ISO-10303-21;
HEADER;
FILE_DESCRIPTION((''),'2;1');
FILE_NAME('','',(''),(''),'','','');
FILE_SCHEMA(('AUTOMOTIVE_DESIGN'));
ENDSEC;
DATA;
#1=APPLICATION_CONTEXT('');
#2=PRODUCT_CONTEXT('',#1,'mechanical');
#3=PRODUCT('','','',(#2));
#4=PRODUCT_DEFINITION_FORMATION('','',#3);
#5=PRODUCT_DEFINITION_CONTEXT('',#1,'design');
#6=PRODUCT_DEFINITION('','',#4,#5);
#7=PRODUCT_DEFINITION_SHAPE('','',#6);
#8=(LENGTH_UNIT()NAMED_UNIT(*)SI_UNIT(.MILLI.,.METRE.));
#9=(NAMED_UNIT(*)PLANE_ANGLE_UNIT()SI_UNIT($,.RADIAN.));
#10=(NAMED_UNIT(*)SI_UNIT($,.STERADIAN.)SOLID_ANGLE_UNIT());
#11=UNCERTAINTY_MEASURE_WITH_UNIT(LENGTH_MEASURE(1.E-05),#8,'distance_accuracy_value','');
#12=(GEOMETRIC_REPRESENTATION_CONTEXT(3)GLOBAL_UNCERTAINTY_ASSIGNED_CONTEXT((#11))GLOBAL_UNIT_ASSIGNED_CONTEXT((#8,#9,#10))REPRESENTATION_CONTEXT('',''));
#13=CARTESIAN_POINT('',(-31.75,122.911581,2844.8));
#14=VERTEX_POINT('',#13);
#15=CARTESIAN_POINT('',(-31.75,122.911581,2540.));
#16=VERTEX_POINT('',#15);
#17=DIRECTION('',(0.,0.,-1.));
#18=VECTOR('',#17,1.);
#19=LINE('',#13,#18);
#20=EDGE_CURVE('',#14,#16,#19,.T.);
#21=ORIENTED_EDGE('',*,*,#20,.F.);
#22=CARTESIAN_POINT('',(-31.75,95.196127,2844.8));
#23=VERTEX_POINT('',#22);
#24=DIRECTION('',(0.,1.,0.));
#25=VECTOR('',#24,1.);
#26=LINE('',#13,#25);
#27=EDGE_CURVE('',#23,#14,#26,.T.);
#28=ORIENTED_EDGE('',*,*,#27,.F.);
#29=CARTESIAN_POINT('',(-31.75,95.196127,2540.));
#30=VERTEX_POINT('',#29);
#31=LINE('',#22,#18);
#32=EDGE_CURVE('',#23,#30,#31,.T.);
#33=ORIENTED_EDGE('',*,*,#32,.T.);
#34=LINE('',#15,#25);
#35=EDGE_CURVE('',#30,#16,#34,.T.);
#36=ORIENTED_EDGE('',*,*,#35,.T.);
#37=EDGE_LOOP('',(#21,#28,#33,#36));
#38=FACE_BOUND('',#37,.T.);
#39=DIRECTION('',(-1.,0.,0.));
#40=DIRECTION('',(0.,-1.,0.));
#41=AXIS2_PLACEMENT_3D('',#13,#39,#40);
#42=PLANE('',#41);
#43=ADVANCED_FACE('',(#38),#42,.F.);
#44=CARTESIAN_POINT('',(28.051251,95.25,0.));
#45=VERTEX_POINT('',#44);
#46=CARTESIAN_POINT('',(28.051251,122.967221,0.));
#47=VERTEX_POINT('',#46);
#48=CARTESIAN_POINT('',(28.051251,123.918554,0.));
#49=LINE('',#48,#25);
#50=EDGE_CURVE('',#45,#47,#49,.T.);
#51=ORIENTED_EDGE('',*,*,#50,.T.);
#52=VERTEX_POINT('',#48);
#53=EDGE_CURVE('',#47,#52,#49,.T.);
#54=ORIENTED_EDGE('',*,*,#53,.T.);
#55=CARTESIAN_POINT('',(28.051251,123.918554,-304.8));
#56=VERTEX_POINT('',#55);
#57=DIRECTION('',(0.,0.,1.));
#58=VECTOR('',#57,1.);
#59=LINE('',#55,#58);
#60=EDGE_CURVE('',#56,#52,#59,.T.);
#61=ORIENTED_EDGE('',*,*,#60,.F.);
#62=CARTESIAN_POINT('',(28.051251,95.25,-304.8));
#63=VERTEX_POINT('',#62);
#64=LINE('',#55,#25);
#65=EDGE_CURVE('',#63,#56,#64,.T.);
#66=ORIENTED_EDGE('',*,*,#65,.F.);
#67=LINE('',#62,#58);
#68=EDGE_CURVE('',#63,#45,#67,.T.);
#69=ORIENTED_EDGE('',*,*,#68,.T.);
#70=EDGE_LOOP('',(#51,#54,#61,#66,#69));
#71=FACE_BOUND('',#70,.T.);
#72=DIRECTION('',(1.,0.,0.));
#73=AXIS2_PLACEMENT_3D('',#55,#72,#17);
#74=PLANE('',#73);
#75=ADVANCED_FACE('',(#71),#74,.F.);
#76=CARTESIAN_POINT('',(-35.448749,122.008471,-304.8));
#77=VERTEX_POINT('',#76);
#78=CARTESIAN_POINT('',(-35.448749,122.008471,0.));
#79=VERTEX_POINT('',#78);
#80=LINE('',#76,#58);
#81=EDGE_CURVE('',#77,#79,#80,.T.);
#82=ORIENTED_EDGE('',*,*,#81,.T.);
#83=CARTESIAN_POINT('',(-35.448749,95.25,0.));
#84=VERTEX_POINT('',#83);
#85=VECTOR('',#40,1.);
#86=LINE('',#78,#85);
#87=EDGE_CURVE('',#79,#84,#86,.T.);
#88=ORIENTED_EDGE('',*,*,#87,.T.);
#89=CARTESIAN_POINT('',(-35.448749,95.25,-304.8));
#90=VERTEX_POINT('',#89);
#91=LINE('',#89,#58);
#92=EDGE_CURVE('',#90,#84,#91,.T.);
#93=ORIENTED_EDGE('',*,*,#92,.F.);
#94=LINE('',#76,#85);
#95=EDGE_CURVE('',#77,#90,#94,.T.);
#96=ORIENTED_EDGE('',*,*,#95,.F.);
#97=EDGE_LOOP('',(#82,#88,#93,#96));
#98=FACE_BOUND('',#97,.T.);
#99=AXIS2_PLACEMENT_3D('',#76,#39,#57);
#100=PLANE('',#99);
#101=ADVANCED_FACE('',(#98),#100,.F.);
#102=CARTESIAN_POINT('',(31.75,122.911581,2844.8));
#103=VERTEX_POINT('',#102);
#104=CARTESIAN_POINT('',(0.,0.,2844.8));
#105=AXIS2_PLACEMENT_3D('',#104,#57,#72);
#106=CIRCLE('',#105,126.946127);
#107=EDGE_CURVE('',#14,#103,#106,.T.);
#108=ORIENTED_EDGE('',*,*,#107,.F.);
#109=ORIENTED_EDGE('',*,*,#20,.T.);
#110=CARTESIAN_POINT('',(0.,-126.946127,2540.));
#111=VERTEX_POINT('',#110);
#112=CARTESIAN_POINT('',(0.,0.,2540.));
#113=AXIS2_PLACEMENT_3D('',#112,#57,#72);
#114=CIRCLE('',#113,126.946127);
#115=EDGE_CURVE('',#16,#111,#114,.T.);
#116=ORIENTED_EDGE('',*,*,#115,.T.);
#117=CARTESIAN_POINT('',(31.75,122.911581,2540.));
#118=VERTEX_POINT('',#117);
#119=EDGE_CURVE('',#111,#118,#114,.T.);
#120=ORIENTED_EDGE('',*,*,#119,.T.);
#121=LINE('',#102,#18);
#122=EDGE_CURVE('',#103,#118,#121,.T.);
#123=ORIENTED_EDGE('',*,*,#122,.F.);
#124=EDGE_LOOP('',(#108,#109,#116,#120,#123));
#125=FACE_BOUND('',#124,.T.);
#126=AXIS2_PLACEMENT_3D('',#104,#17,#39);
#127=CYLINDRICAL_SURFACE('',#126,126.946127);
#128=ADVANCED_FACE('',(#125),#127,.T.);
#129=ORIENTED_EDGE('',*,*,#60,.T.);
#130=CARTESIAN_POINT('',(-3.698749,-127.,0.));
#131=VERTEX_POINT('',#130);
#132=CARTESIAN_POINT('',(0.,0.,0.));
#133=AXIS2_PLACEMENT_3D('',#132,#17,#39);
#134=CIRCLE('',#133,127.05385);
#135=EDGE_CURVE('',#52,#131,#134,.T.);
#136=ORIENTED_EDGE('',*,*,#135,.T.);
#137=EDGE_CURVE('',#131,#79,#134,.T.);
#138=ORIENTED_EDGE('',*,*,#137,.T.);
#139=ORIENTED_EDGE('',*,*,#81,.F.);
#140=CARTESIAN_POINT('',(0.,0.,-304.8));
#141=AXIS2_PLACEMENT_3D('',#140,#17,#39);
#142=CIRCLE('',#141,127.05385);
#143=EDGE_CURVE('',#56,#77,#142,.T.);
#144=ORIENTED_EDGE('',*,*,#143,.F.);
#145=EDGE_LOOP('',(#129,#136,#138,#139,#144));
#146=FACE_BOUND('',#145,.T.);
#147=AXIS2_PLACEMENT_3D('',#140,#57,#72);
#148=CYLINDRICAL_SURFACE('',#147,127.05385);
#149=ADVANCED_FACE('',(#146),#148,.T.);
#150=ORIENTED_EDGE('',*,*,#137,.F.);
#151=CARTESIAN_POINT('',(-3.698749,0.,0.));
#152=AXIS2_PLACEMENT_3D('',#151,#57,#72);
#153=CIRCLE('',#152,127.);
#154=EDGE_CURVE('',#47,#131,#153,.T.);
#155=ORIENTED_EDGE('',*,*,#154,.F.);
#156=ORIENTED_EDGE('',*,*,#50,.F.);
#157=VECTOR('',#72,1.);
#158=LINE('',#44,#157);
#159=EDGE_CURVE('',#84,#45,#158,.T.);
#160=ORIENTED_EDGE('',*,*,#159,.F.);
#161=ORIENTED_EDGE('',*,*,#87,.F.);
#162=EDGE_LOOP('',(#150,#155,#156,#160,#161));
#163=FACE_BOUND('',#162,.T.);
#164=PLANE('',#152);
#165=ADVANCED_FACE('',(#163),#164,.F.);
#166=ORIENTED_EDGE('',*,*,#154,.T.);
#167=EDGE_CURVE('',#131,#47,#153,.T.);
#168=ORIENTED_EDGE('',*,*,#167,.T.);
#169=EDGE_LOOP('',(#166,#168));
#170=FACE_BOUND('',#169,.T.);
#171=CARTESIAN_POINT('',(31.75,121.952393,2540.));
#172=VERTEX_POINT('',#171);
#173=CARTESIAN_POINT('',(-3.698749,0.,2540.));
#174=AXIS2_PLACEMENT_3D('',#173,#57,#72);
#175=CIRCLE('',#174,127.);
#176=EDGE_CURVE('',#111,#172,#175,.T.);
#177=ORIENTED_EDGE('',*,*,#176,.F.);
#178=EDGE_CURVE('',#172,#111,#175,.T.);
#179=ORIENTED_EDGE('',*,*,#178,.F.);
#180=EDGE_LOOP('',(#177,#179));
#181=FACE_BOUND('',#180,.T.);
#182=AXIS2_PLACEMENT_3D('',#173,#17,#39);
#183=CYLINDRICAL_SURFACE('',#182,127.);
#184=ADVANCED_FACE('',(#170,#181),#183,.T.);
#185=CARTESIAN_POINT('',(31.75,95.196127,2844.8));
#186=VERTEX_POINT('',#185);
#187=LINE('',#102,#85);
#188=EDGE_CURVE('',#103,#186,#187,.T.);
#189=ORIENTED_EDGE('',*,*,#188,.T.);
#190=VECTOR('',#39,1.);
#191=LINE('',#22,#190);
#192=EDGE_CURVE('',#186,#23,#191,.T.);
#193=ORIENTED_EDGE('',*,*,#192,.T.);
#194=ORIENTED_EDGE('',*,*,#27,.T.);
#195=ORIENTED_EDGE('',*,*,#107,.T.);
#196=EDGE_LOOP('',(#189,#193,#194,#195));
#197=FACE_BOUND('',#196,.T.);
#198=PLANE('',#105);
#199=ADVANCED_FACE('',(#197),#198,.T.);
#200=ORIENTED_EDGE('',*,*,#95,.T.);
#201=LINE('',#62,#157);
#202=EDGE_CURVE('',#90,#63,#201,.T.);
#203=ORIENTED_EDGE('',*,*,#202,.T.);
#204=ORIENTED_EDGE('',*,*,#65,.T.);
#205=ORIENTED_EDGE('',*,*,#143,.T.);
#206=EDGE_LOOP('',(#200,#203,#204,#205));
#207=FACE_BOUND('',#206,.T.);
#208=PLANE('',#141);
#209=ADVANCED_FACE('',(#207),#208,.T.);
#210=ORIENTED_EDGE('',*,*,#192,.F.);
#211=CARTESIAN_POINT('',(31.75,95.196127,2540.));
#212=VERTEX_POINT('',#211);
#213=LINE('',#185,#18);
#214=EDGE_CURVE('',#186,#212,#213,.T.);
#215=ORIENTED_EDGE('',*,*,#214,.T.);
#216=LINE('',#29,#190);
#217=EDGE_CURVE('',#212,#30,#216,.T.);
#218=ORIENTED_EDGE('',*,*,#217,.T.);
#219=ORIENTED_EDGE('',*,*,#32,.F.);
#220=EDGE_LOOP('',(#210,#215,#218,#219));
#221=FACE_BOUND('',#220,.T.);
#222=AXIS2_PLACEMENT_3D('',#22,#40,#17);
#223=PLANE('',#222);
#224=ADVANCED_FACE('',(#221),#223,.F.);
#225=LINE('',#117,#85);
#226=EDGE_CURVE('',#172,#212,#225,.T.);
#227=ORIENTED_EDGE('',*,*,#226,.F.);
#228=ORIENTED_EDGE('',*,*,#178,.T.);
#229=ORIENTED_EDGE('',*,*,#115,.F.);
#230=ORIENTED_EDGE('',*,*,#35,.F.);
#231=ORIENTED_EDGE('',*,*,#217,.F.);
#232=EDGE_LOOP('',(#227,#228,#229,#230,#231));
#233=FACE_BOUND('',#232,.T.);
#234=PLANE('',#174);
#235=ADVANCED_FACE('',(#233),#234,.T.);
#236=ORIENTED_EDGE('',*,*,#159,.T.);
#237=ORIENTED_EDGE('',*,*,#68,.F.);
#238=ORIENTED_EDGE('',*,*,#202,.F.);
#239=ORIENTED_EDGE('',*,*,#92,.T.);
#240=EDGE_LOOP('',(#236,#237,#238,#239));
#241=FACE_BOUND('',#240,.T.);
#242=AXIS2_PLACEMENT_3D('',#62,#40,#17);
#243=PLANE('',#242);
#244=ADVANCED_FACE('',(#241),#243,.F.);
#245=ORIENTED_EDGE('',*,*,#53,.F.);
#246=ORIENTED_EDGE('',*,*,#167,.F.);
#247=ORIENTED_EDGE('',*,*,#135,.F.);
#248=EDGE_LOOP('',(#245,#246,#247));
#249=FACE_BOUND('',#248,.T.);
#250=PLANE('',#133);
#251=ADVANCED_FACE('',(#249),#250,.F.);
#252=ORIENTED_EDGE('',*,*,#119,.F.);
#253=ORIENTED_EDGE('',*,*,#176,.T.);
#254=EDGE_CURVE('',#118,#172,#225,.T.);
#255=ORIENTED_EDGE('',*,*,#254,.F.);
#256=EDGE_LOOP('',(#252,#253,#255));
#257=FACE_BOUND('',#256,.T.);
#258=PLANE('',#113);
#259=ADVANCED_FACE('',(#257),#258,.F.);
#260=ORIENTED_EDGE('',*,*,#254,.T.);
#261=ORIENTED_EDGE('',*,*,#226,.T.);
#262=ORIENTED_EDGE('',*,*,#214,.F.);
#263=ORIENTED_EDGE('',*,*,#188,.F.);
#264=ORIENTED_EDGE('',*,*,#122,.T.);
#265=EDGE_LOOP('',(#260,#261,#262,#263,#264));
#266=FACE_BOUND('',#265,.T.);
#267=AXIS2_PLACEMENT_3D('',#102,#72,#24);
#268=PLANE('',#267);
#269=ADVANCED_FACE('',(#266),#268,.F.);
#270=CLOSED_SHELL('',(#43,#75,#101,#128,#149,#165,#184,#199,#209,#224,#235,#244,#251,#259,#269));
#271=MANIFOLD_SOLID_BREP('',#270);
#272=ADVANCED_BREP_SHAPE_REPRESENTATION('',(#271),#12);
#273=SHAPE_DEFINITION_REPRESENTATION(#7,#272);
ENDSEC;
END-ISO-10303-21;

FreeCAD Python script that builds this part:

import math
import FreeCAD as App
import Part
import Sketcher
from FreeCAD import Vector
Q = App.Units.Quantity

doc = App.newDocument("Part")
body = doc.addObject("PartDesign::Body", "Body")

sketch1 = body.newObject("Sketcher::SketchObject", "Sketch")
sketch1.AttachmentSupport = (doc.getObject("XY_Plane"), [""])
sketch1.MapMode = "FlatFace"
sketch1.addGeometry(Part.Circle(Vector(-3.698749, 0, 0), Vector(0, 0, 1), 127), False)
sketch1.addConstraint(Sketcher.Constraint("PointOnObject", 0, 3, -1))
sketch1.addConstraint(Sketcher.Constraint("Diameter", 0, Q("10 in")))
sketch1.addConstraint(Sketcher.Constraint("DistanceX", 0, 3, -1, 1, Q("3.698749 mm")))
pad1 = body.newObject("PartDesign::Pad", "Pad")
pad1.Profile = sketch1
pad1.Length = Q("100 in")

sketch2 = body.newObject("Sketcher::SketchObject", "Sketch001")
sketch2.AttachmentSupport = (doc.getObject("XY_Plane"), [""])
sketch2.MapMode = "FlatFace"
sketch2.AttachmentOffset = App.Placement(Vector(0, 0, 100 * 25.4), App.Rotation())
sketch2.addGeometry(Part.LineSegment(Vector(-31.75, 95.196127, 0), Vector(-31.75, 122.911581, 0)), False)
sketch2.addGeometry(Part.ArcOfCircle(Part.Circle(Vector(0, 0, 0), Vector(0, 0, 1), 126.946127), math.radians(104.48379), math.radians(435.51621)), False)
sketch2.addGeometry(Part.LineSegment(Vector(31.75, 122.911581, 0), Vector(31.75, 95.196127, 0)), False)
sketch2.addGeometry(Part.LineSegment(Vector(31.75, 95.196127, 0), Vector(-31.75, 95.196127, 0)), False)
sketch2.addConstraint(Sketcher.Constraint("Coincident", 0, 2, 1, 1))
sketch2.addConstraint(Sketcher.Constraint("Coincident", 1, 2, 2, 1))
sketch2.addConstraint(Sketcher.Constraint("Coincident", 2, 2, 3, 1))
sketch2.addConstraint(Sketcher.Constraint("Coincident", 3, 2, 0, 1))
sketch2.addConstraint(Sketcher.Constraint("Vertical", 0))
sketch2.addConstraint(Sketcher.Constraint("Vertical", 2))
sketch2.addConstraint(Sketcher.Constraint("Horizontal", 3))
sketch2.addConstraint(Sketcher.Constraint("Coincident", 1, 3, -1, 1))
sketch2.addConstraint(Sketcher.Constraint("Horizontal", 0, 2, 1, 2))
sketch2.addConstraint(Sketcher.Constraint("DistanceX", 3, 2, 3, 1, Q("2.5 in")))
sketch2.addConstraint(Sketcher.Constraint("Radius", 1, Q("126.946127 mm")))
sketch2.addConstraint(Sketcher.Constraint("DistanceY", 0, 1, 0, 2, Q("27.715454 mm")))
pad2 = body.newObject("PartDesign::Pad", "Pad001")
pad2.Profile = sketch2
pad2.Length = Q("12 in")

sketch3 = body.newObject("Sketcher::SketchObject", "Sketch002")
sketch3.AttachmentSupport = (doc.getObject("XY_Plane"), [""])
sketch3.MapMode = "FlatFace"
sketch3.addGeometry(Part.LineSegment(Vector(28.051251, 95.25, 0), Vector(28.051251, 123.918554, 0)), False)
sketch3.addGeometry(Part.ArcOfCircle(Part.Circle(Vector(0, 0, 0), Vector(0, 0, 1), 127.05385), math.radians(106.200871), math.radians(437.24501)), False)
sketch3.addGeometry(Part.LineSegment(Vector(-35.448749, 122.008471, 0), Vector(-35.448749, 95.25, 0)), False)
sketch3.addGeometry(Part.LineSegment(Vector(-35.448749, 95.25, 0), Vector(28.051251, 95.25, 0)), False)
sketch3.addConstraint(Sketcher.Constraint("Coincident", 0, 2, 1, 2))
sketch3.addConstraint(Sketcher.Constraint("Coincident", 1, 1, 2, 1))
sketch3.addConstraint(Sketcher.Constraint("Coincident", 2, 2, 3, 1))
sketch3.addConstraint(Sketcher.Constraint("Coincident", 3, 2, 0, 1))
sketch3.addConstraint(Sketcher.Constraint("Vertical", 0))
sketch3.addConstraint(Sketcher.Constraint("Vertical", 2))
sketch3.addConstraint(Sketcher.Constraint("Horizontal", 3))
sketch3.addConstraint(Sketcher.Constraint("Coincident", 1, 3, -1, 1))
sketch3.addConstraint(Sketcher.Constraint("DistanceX", 3, 1, 3, 2, Q("2.5 in")))
sketch3.addConstraint(Sketcher.Constraint("DistanceY", -1, 1, 2, 2, Q("3.75 in")))
sketch3.addConstraint(Sketcher.Constraint("Radius", 1, Q("127.05385 mm")))
sketch3.addConstraint(Sketcher.Constraint("DistanceY", 1, 1, 0, 2, Q("0.0752001 in")))
pad3 = body.newObject("PartDesign::Pad", "Pad002")
pad3.Profile = sketch3
pad3.Length = Q("12 in")
pad3.Reversed = True

doc.recompute()
